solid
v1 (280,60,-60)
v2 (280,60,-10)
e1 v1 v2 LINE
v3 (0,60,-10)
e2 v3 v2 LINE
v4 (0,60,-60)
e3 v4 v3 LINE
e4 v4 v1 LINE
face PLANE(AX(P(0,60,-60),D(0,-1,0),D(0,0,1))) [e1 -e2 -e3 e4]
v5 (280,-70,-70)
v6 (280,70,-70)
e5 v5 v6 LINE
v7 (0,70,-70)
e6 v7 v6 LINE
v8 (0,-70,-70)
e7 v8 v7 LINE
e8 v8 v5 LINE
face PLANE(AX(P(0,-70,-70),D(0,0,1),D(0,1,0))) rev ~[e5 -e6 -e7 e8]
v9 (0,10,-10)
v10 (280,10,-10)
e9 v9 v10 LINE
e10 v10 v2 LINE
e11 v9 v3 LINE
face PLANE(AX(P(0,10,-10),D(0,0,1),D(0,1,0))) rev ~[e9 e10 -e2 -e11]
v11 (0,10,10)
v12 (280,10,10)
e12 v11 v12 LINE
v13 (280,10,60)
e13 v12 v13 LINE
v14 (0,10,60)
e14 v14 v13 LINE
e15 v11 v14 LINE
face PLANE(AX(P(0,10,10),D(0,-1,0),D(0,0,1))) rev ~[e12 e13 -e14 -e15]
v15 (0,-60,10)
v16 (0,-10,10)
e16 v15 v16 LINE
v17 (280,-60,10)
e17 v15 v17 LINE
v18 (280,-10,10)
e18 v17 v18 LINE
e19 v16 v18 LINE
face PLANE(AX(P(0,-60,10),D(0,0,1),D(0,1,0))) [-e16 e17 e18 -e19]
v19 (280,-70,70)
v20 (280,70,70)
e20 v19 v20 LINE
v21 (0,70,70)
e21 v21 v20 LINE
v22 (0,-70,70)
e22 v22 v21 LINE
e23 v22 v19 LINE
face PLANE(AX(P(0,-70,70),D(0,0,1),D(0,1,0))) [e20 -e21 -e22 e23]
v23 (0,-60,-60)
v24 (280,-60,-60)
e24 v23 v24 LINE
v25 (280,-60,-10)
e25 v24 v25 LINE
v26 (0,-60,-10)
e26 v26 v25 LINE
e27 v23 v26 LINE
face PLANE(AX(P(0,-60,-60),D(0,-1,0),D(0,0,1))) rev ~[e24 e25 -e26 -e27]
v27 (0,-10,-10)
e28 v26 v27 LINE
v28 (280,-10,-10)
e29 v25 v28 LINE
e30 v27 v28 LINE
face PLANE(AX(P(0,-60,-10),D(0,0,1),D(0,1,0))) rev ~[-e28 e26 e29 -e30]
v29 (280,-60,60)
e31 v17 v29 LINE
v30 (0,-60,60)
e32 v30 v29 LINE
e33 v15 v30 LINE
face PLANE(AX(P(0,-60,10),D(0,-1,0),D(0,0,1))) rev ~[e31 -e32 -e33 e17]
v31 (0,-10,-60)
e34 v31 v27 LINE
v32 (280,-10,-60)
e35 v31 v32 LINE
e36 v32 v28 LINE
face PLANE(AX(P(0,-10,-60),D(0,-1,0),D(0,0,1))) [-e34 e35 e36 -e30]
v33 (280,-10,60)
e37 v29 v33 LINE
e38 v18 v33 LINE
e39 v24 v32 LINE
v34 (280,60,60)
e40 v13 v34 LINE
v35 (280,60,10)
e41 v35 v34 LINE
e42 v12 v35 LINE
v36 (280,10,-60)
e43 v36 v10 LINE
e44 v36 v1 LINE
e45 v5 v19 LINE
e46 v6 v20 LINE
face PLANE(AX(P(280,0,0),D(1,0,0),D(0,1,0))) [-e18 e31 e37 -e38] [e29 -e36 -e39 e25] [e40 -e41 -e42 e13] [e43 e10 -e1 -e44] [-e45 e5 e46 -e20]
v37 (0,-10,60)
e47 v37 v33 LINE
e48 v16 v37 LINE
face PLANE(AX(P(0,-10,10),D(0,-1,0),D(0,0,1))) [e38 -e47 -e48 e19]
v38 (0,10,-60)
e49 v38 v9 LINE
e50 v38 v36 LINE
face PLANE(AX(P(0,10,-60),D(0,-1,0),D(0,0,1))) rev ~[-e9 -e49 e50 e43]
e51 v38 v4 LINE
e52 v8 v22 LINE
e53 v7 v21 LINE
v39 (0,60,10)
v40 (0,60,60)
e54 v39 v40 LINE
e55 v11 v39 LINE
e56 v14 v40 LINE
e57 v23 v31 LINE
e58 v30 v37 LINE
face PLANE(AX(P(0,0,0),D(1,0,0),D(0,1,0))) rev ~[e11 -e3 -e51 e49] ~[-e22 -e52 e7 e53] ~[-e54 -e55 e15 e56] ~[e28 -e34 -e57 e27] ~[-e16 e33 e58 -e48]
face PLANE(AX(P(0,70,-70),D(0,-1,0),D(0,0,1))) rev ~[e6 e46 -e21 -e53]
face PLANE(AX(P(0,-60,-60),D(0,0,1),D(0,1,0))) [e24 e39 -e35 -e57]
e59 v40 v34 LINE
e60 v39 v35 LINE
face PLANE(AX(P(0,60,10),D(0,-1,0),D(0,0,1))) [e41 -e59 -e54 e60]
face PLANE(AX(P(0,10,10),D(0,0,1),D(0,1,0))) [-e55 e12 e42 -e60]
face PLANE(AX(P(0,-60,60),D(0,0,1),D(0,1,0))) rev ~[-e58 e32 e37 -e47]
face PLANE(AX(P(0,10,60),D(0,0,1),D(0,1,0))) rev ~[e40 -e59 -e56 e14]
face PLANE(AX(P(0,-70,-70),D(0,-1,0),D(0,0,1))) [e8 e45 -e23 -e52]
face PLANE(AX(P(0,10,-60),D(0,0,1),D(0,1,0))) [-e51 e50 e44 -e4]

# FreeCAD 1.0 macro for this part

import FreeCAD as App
import Part
import Sketcher
from FreeCAD import Vector

doc = App.newDocument("Part")
body = doc.addObject("PartDesign::Body", "Body")

sketch1 = body.newObject("Sketcher::SketchObject", "Sketch")
sketch1.AttachmentSupport = (doc.getObject("YZ_Plane"), [""])
sketch1.MapMode = "FlatFace"
sketch1.addGeometry([
    Part.LineSegment(Vector(-70, 70, 0), Vector(-70, -70, 0)),
    Part.LineSegment(Vector(-70, -70, 0), Vector(70, -70, 0)),
    Part.LineSegment(Vector(70, -70, 0), Vector(70, 70, 0)),
    Part.LineSegment(Vector(70, 70, 0), Vector(-70, 70, 0)),
    Part.LineSegment(Vector(-10, -60, 0), Vector(-60, -60, 0)),
    Part.LineSegment(Vector(-60, -60, 0), Vector(-60, -10, 0)),
    Part.LineSegment(Vector(-60, -10, 0), Vector(-10, -10, 0)),
    Part.LineSegment(Vector(-10, -10, 0), Vector(-10, -60, 0)),
    Part.LineSegment(Vector(60, -60, 0), Vector(10, -60, 0)),
    Part.LineSegment(Vector(10, -60, 0), Vector(10, -10, 0)),
    Part.LineSegment(Vector(10, -10, 0), Vector(60, -10, 0)),
    Part.LineSegment(Vector(60, -10, 0), Vector(60, -60, 0)),
    Part.LineSegment(Vector(-10, 10, 0), Vector(-60, 10, 0)),
    Part.LineSegment(Vector(-60, 10, 0), Vector(-60, 60, 0)),
    Part.LineSegment(Vector(-60, 60, 0), Vector(-10, 60, 0)),
    Part.LineSegment(Vector(-10, 60, 0), Vector(-10, 10, 0)),
    Part.LineSegment(Vector(60, 10, 0), Vector(10, 10, 0)),
    Part.LineSegment(Vector(10, 10, 0), Vector(10, 60, 0)),
    Part.LineSegment(Vector(10, 60, 0), Vector(60, 60, 0)),
    Part.LineSegment(Vector(60, 60, 0), Vector(60, 10, 0)),
], False)
sketch1.addConstraint([
    Sketcher.Constraint("Coincident", 0, 2, 1, 1),
    Sketcher.Constraint("Coincident", 1, 2, 2, 1),
    Sketcher.Constraint("Coincident", 2, 2, 3, 1),
    Sketcher.Constraint("Coincident", 3, 2, 0, 1),
    Sketcher.Constraint("Coincident", 4, 2, 5, 1),
    Sketcher.Constraint("Coincident", 5, 2, 6, 1),
    Sketcher.Constraint("Coincident", 6, 2, 7, 1),
    Sketcher.Constraint("Coincident", 7, 2, 4, 1),
    Sketcher.Constraint("Coincident", 8, 2, 9, 1),
    Sketcher.Constraint("Coincident", 9, 2, 10, 1),
    Sketcher.Constraint("Coincident", 10, 2, 11, 1),
    Sketcher.Constraint("Coincident", 11, 2, 8, 1),
    Sketcher.Constraint("Coincident", 12, 2, 13, 1),
    Sketcher.Constraint("Coincident", 13, 2, 14, 1),
    Sketcher.Constraint("Coincident", 14, 2, 15, 1),
    Sketcher.Constraint("Coincident", 15, 2, 12, 1),
    Sketcher.Constraint("Coincident", 16, 2, 17, 1),
    Sketcher.Constraint("Coincident", 17, 2, 18, 1),
    Sketcher.Constraint("Coincident", 18, 2, 19, 1),
    Sketcher.Constraint("Coincident", 19, 2, 16, 1),
    Sketcher.Constraint("Vertical", 0),
    Sketcher.Constraint("Horizontal", 1),
    Sketcher.Constraint("Vertical", 2),
    Sketcher.Constraint("Horizontal", 3),
    Sketcher.Constraint("Horizontal", 4),
    Sketcher.Constraint("Vertical", 5),
    Sketcher.Constraint("Horizontal", 6),
    Sketcher.Constraint("Vertical", 7),
    Sketcher.Constraint("Horizontal", 8),
    Sketcher.Constraint("Vertical", 9),
    Sketcher.Constraint("Horizontal", 10),
    Sketcher.Constraint("Vertical", 11),
    Sketcher.Constraint("Horizontal", 12),
    Sketcher.Constraint("Vertical", 13),
    Sketcher.Constraint("Horizontal", 14),
    Sketcher.Constraint("Vertical", 15),
    Sketcher.Constraint("Horizontal", 16),
    Sketcher.Constraint("Vertical", 17),
    Sketcher.Constraint("Horizontal", 18),
    Sketcher.Constraint("Vertical", 19),
    Sketcher.Constraint("Symmetric", 0, 2, 2, 2, -1, 1),
    Sketcher.Constraint("Symmetric", 10, 2, 12, 2, -1, 1),
    Sketcher.Constraint("Symmetric", 8, 2, 14, 2, -1, 1),
    Sketcher.Constraint("Symmetric", 6, 2, 16, 2, -1, 1),
    Sketcher.Constraint("Symmetric", 4, 2, 18, 2, -1, 1),
    Sketcher.Constraint("Symmetric", 7, 2, 8, 2, -2),
    Sketcher.Constraint("Symmetric", 5, 2, 10, 2, -2),
    Sketcher.Constraint("Equal", 3, 0),
    Sketcher.Constraint("Equal", 18, 5),
    Sketcher.Constraint("DistanceX", 1, 1, 1, 2, 140.0),
    Sketcher.Constraint("DistanceX", 4, 2, 4, 1, 50.0),
    Sketcher.Constraint("DistanceX", 4, 2, -1, 1, 60.0),
    Sketcher.Constraint("DistanceY", 4, 2, -1, 1, 60.0),
])
pad1 = body.newObject("PartDesign::Pad", "Pad")
pad1.Profile = sketch1
pad1.Length = 280

doc.recompute()
